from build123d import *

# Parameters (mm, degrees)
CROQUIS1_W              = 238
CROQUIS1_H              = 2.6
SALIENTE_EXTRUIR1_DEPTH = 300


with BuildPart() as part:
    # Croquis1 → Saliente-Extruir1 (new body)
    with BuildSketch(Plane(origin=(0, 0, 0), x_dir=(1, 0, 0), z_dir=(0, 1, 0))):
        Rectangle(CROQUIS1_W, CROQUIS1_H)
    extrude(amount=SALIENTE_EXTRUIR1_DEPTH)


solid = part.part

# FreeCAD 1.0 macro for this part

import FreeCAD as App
import Part
import Sketcher

V = App.Vector
Q = App.Units.Quantity

doc = App.newDocument("Part")
params = doc.addObject("Spreadsheet::Sheet", "Params")
for row, (alias, value) in enumerate([
    ("sketch1_width", "238 mm"),
    ("sketch1_height", "2.6 mm"),
    ("pad1_length", "300 mm"),
], start=1):
    params.set(f"A{row}", alias)
    params.set(f"B{row}", "=" + value)
    params.setAlias(f"B{row}", alias)

body = doc.addObject("PartDesign::Body", "Body")

sketch1 = body.newObject("Sketcher::SketchObject", "Sketch")
sketch1.AttachmentSupport = (doc.getObject("XZ_Plane"), [""])
sketch1.MapMode = "FlatFace"
sketch1.addGeometry(Part.LineSegment(V(-119, -1.3, 0), V(-119, 1.3, 0)), False)
sketch1.addGeometry(Part.LineSegment(V(-119, 1.3, 0), V(119, 1.3, 0)), False)
sketch1.addGeometry(Part.LineSegment(V(119, 1.3, 0), V(119, -1.3, 0)), False)
sketch1.addGeometry(Part.LineSegment(V(119, -1.3, 0), V(-119, -1.3, 0)), False)
sketch1.addConstraint(Sketcher.Constraint("Coincident", 0, 2, 1, 1))
sketch1.addConstraint(Sketcher.Constraint("Coincident", 1, 2, 2, 1))
sketch1.addConstraint(Sketcher.Constraint("Coincident", 2, 2, 3, 1))
sketch1.addConstraint(Sketcher.Constraint("Coincident", 3, 2, 0, 1))
sketch1.addConstraint(Sketcher.Constraint("Vertical", 0))
sketch1.addConstraint(Sketcher.Constraint("Horizontal", 1))
sketch1.addConstraint(Sketcher.Constraint("Vertical", 2))
sketch1.addConstraint(Sketcher.Constraint("Horizontal", 3))
sketch1.addConstraint(Sketcher.Constraint("Symmetric", 0, 2, 2, 2, -1, 1))
sketch1.addConstraint(Sketcher.Constraint("DistanceX", 1, 1, 1, 2, Q("238 mm")))
sketch1.addConstraint(Sketcher.Constraint("DistanceY", 0, 1, 0, 2, Q("2.6 mm")))
sketch1.setExpression("Constraints[9]", "Params.sketch1_width")
sketch1.setExpression("Constraints[10]", "Params.sketch1_height")
pad1 = body.newObject("PartDesign::Pad", "Pad")
pad1.Profile = sketch1
pad1.setExpression("Length", "Params.pad1_length")
pad1.Reversed = True

doc.recompute()
